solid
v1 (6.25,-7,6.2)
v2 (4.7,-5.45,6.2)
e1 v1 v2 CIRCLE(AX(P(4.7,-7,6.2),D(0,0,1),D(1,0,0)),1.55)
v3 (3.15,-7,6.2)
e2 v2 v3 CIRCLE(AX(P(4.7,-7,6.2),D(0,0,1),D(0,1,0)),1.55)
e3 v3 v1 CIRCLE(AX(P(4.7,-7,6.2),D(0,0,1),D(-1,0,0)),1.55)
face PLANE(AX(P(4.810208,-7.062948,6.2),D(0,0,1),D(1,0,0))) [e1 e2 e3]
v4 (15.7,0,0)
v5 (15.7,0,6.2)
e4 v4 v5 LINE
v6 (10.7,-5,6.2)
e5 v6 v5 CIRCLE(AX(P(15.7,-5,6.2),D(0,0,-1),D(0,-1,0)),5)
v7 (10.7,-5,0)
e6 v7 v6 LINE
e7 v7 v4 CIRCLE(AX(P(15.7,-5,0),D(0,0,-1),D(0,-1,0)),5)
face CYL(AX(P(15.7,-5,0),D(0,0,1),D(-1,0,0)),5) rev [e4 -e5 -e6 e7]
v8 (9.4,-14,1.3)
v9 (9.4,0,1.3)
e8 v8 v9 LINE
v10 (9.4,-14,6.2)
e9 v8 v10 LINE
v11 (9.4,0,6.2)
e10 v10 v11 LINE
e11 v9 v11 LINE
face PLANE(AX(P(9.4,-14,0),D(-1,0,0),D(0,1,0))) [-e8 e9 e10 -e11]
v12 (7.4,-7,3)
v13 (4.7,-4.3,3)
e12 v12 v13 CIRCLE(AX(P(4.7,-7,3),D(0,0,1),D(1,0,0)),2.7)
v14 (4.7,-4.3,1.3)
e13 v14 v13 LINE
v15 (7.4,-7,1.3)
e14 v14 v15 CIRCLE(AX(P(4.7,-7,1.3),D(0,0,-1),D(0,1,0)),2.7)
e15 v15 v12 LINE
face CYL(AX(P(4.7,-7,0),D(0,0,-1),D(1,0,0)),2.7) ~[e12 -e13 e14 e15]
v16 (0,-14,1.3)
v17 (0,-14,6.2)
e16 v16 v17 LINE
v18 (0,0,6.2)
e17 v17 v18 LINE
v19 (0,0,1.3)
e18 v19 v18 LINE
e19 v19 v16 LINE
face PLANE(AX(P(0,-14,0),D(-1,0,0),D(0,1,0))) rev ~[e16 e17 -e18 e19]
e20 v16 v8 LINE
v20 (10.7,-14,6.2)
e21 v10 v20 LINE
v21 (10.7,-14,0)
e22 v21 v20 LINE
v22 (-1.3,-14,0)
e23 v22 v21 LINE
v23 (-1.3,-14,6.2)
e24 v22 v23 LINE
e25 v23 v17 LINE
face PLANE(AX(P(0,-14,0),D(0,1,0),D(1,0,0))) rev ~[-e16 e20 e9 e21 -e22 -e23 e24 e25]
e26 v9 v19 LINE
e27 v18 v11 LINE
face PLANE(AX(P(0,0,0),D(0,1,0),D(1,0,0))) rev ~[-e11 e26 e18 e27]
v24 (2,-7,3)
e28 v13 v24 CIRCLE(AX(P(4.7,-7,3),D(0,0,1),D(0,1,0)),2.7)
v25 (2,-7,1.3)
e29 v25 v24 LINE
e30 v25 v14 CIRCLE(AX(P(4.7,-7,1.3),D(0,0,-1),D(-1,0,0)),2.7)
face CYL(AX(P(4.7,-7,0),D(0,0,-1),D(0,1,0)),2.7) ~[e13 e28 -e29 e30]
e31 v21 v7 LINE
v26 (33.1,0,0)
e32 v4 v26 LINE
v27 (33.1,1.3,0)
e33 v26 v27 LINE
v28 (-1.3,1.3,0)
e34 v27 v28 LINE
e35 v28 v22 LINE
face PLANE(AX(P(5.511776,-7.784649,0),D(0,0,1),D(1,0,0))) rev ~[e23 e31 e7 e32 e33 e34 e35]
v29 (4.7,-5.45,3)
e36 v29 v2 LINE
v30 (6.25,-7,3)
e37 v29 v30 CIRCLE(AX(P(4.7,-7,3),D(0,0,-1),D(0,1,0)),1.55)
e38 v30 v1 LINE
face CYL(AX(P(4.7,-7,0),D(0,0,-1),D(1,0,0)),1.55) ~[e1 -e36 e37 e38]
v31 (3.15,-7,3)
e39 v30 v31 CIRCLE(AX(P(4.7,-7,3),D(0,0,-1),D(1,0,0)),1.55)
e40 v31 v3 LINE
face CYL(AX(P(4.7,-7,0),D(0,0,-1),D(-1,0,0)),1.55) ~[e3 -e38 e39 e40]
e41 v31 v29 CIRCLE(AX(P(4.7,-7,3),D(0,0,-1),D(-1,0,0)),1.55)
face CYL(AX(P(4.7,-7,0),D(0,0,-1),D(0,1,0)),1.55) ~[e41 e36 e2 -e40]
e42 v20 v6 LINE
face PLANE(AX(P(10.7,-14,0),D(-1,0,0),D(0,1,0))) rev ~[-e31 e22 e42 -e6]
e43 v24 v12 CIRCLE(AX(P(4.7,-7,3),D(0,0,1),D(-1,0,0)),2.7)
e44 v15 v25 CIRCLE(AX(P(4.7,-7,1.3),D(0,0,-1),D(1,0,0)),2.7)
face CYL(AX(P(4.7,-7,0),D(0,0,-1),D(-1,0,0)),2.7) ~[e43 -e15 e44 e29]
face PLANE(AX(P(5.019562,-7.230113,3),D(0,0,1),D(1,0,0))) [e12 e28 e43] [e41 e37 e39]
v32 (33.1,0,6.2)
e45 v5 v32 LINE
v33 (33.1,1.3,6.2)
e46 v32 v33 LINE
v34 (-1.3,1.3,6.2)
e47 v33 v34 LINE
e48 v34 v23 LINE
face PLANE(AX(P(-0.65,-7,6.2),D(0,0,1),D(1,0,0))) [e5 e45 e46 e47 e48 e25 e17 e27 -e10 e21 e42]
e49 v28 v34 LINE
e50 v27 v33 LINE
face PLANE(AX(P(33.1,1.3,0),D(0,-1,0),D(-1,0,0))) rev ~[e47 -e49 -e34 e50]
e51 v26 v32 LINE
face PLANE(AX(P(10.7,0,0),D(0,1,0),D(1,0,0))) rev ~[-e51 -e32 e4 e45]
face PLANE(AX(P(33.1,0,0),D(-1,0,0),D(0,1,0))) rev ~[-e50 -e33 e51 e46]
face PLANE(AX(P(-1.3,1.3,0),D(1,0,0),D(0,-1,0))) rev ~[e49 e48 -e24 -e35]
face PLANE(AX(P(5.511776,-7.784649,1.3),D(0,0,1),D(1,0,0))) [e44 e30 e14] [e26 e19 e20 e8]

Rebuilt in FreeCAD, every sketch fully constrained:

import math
import FreeCAD as App
import Part
import Sketcher
from FreeCAD import Vector
Q = App.Units.Quantity


def edges_at(feature, points):
    """Names of the edges that pass closest to the given points."""
    edges = feature.Shape.Edges
    near = lambda p: min(range(len(edges)), key=lambda i: edges[i].distToShape(Part.Vertex(*p))[0])
    return sorted({f"Edge{near(p) + 1}" for p in points})

doc = App.newDocument("Part")
body = doc.addObject("PartDesign::Body", "Body")

# Sketch on XY plane
sketch1 = body.newObject("Sketcher::SketchObject", "Sketch")
sketch1.AttachmentSupport = (doc.getObject("XY_Plane"), [""])
sketch1.MapMode = "FlatFace"
sketch1.addGeometry([
    Part.ArcOfCircle(Part.Circle(Vector(4.7, -7, 0), Vector(0, 0, 1), 1.55), math.radians(0), math.radians(90)),
    Part.ArcOfCircle(Part.Circle(Vector(4.7, -7, 0), Vector(0, 0, 1), 1.55), math.radians(90), math.radians(180)),
    Part.ArcOfCircle(Part.Circle(Vector(4.7, -7, 0), Vector(0, 0, 1), 1.55), math.radians(180), math.radians(360)),
], False)
sketch1.addConstraint([
    Sketcher.Constraint("Tangent", 0, 2, 1, 1),
    Sketcher.Constraint("Tangent", 1, 2, 2, 1),
    Sketcher.Constraint("Tangent", 2, 2, 0, 1),
    Sketcher.Constraint("Horizontal", 2, 3, 1, 2),
    Sketcher.Constraint("Horizontal", 1, 2, 2, 2),
    Sketcher.Constraint("Vertical", 2, 3, 0, 2),
    Sketcher.Constraint("Radius", 0, Q("1.55 mm")),
    Sketcher.Constraint("DistanceY", 0, 3, -1, 1, Q("7 mm")),
    Sketcher.Constraint("DistanceX", -1, 1, 0, 3, Q("4.7 mm")),
])
pad1 = body.newObject("PartDesign::Pad", "Pad")
pad1.Profile = sketch1
pad1.Length = 6.2

# Sketch on XY plane
sketch2 = body.newObject("Sketcher::SketchObject", "Sketch001")
sketch2.AttachmentSupport = (doc.getObject("XY_Plane"), [""])
sketch2.MapMode = "FlatFace"
sketch2.addGeometry([
    Part.ArcOfCircle(Part.Circle(Vector(4.7, -7, 0), Vector(0, 0, 1), 2.7), math.radians(0), math.radians(90)),  # 0
    Part.ArcOfCircle(Part.Circle(Vector(4.7, -7, 0), Vector(0, 0, 1), 2.7), math.radians(90), math.radians(180)),  # 1
    Part.ArcOfCircle(Part.Circle(Vector(4.7, -7, 0), Vector(0, 0, 1), 2.7), math.radians(180), math.radians(360)),  # 2
    Part.ArcOfCircle(Part.Circle(Vector(4.7, -7, 0), Vector(0, 0, 1), 1.55), math.radians(0), math.radians(90)),  # 3
    Part.ArcOfCircle(Part.Circle(Vector(4.7, -7, 0), Vector(0, 0, 1), 1.55), math.radians(180), math.radians(360)),  # 4
    Part.ArcOfCircle(Part.Circle(Vector(4.7, -7, 0), Vector(0, 0, 1), 1.55), math.radians(90), math.radians(180)),  # 5
], False)
sketch2.addConstraint([
    Sketcher.Constraint("Tangent", 0, 2, 1, 1),
    Sketcher.Constraint("Tangent", 1, 2, 2, 1),
    Sketcher.Constraint("Tangent", 2, 2, 0, 1),
    Sketcher.Constraint("Tangent", 3, 1, 4, 2),
    Sketcher.Constraint("Tangent", 4, 1, 5, 2),
    Sketcher.Constraint("Tangent", 5, 1, 3, 2),
    Sketcher.Constraint("Coincident", 3, 3, 0, 3),
    Sketcher.Constraint("Horizontal", 5, 3, 1, 2),
    Sketcher.Constraint("Horizontal", 1, 2, 2, 2),
    Sketcher.Constraint("Horizontal", 2, 2, 3, 1),
    Sketcher.Constraint("Horizontal", 3, 1, 4, 1),
    Sketcher.Constraint("Vertical", 5, 3, 0, 2),
    Sketcher.Constraint("Vertical", 0, 2, 5, 1),
    Sketcher.Constraint("Radius", 0, Q("2.7 mm")),
    Sketcher.Constraint("Radius", 3, Q("1.55 mm")),
    Sketcher.Constraint("DistanceY", 0, 3, -1, 1, Q("7 mm")),
    Sketcher.Constraint("DistanceX", -1, 1, 1, 2, Q("2 mm")),
])
pad2 = body.newObject("PartDesign::Pad", "Pad001")
pad2.Profile = sketch2
pad2.Length = 3
body2 = doc.addObject("PartDesign::Body", "Body001")

# Sketch on XY plane
sketch3 = body2.newObject("Sketcher::SketchObject", "Sketch002")
sketch3.AttachmentSupport = (doc.getObject("XY_Plane001"), [""])
sketch3.MapMode = "FlatFace"
sketch3.addGeometry([
    Part.LineSegment(Vector(-1.3, -14, 0), Vector(0, -14, 0)),  # 0
    Part.LineSegment(Vector(0, -14, 0), Vector(0, 0, 0)),  # 1
    Part.LineSegment(Vector(0, 0, 0), Vector(9.4, 0, 0)),  # 2
    Part.LineSegment(Vector(9.4, 0, 0), Vector(9.4, -14, 0)),  # 3
    Part.LineSegment(Vector(9.4, -14, 0), Vector(10.7, -14, 0)),  # 4
    Part.LineSegment(Vector(10.7, -14, 0), Vector(10.7, 0, 0)),  # 5
    Part.LineSegment(Vector(10.7, 0, 0), Vector(33.1, 0, 0)),  # 6
    Part.LineSegment(Vector(33.1, 0, 0), Vector(33.1, 1.3, 0)),  # 7
    Part.LineSegment(Vector(33.1, 1.3, 0), Vector(-1.3, 1.3, 0)),  # 8
    Part.LineSegment(Vector(-1.3, 1.3, 0), Vector(-1.3, -14, 0)),  # 9
], False)
sketch3.addConstraint([
    Sketcher.Constraint("Coincident", 0, 2, 1, 1),
    Sketcher.Constraint("Coincident", 1, 2, 2, 1),
    Sketcher.Constraint("Coincident", 2, 2, 3, 1),
    Sketcher.Constraint("Coincident", 3, 2, 4, 1),
    Sketcher.Constraint("Coincident", 4, 2, 5, 1),
    Sketcher.Constraint("Coincident", 5, 2, 6, 1),
    Sketcher.Constraint("Coincident", 6, 2, 7, 1),
    Sketcher.Constraint("Coincident", 7, 2, 8, 1),
    Sketcher.Constraint("Coincident", 8, 2, 9, 1),
    Sketcher.Constraint("Coincident", 9, 2, 0, 1),
    Sketcher.Constraint("Horizontal", 0),
    Sketcher.Constraint("Vertical", 1),
    Sketcher.Constraint("Horizontal", 2),
    Sketcher.Constraint("Vertical", 3),
    Sketcher.Constraint("Horizontal", 4),
    Sketcher.Constraint("Vertical", 5),
    Sketcher.Constraint("Horizontal", 6),
    Sketcher.Constraint("Vertical", 7),
    Sketcher.Constraint("Horizontal", 8),
    Sketcher.Constraint("Vertical", 9),
    Sketcher.Constraint("Coincident", 1, 2, -1, 1),
    Sketcher.Constraint("PointOnObject", 5, 2, -1),
    Sketcher.Constraint("Horizontal", 0, 2, 3, 2),
    Sketcher.Constraint("Equal", 0, 4),
    Sketcher.Constraint("Equal", 4, 7),
    Sketcher.Constraint("DistanceY", 1, 1, 1, 2, Q("14 mm")),
    Sketcher.Constraint("DistanceX", 0, 1, 0, 2, Q("1.3 mm")),
    Sketcher.Constraint("DistanceX", 2, 1, 2, 2, Q("9.4 mm")),
    Sketcher.Constraint("DistanceX", 6, 1, 6, 2, Q("22.4 mm")),
])
pad3 = body2.newObject("PartDesign::Pad", "Pad002")
pad3.Profile = sketch3
pad3.Length = 6.2
body.AllowCompound = True
doc.recompute()

boolean = body.newObject("PartDesign::Boolean", "Boolean")
boolean.Type = "Fuse"
boolean.addObjects([body2])

# Sketch on XY plane
sketch4 = body.newObject("Sketcher::SketchObject", "Sketch003")
sketch4.AttachmentSupport = (doc.getObject("XY_Plane"), [""])
sketch4.MapMode = "FlatFace"
sketch4.addGeometry([
    Part.LineSegment(Vector(9.4, 0, 0), Vector(0, 0, 0)),  # 0
    Part.LineSegment(Vector(0, 0, 0), Vector(0, -14, 0)),  # 1
    Part.LineSegment(Vector(0, -14, 0), Vector(9.4, -14, 0)),  # 2
    Part.LineSegment(Vector(9.4, -14, 0), Vector(9.4, 0, 0)),  # 3
    Part.ArcOfCircle(Part.Circle(Vector(4.7, -7, 0), Vector(0, 0, 1), 2.7), math.radians(0), math.radians(90)),  # 4
    Part.ArcOfCircle(Part.Circle(Vector(4.7, -7, 0), Vector(0, 0, 1), 2.7), math.radians(180), math.radians(360)),  # 5
    Part.ArcOfCircle(Part.Circle(Vector(4.7, -7, 0), Vector(0, 0, 1), 2.7), math.radians(90), math.radians(180)),  # 6
], False)
sketch4.addConstraint([
    Sketcher.Constraint("Coincident", 0, 2, 1, 1),
    Sketcher.Constraint("Coincident", 1, 2, 2, 1),
    Sketcher.Constraint("Coincident", 2, 2, 3, 1),
    Sketcher.Constraint("Coincident", 3, 2, 0, 1),
    Sketcher.Constraint("Tangent", 4, 1, 5, 2),
    Sketcher.Constraint("Tangent", 5, 1, 6, 2),
    Sketcher.Constraint("Tangent", 6, 1, 4, 2),
    Sketcher.Constraint("Horizontal", 0),
    Sketcher.Constraint("Vertical", 1),
    Sketcher.Constraint("Horizontal", 2),
    Sketcher.Constraint("Vertical", 3),
    Sketcher.Constraint("Coincident", 0, 2, -1, 1),
    Sketcher.Constraint("Horizontal", 6, 3, 4, 1),
    Sketcher.Constraint("Horizontal", 4, 1, 5, 1),
    Sketcher.Constraint("Vertical", 5, 3, 6, 1),
    Sketcher.Constraint("Radius", 4, Q("2.7 mm")),
    Sketcher.Constraint("DistanceY", 1, 2, 1, 1, Q("14 mm")),
    Sketcher.Constraint("DistanceX", 0, 2, 0, 1, Q("9.4 mm")),
    Sketcher.Constraint("DistanceY", 4, 3, -1, 1, Q("7 mm")),
    Sketcher.Constraint("DistanceX", -1, 1, 5, 1, Q("2 mm")),
])
pad4 = body.newObject("PartDesign::Pad", "Pad003")
pad4.Profile = sketch4
pad4.Length = 1.3
doc.recompute()

fillet = body.newObject("PartDesign::Fillet", "Fillet")
fillet.Base = (pad4, edges_at(pad4, [(10.7, 0, 3.1)]))
fillet.Radius = 5

doc.recompute()
